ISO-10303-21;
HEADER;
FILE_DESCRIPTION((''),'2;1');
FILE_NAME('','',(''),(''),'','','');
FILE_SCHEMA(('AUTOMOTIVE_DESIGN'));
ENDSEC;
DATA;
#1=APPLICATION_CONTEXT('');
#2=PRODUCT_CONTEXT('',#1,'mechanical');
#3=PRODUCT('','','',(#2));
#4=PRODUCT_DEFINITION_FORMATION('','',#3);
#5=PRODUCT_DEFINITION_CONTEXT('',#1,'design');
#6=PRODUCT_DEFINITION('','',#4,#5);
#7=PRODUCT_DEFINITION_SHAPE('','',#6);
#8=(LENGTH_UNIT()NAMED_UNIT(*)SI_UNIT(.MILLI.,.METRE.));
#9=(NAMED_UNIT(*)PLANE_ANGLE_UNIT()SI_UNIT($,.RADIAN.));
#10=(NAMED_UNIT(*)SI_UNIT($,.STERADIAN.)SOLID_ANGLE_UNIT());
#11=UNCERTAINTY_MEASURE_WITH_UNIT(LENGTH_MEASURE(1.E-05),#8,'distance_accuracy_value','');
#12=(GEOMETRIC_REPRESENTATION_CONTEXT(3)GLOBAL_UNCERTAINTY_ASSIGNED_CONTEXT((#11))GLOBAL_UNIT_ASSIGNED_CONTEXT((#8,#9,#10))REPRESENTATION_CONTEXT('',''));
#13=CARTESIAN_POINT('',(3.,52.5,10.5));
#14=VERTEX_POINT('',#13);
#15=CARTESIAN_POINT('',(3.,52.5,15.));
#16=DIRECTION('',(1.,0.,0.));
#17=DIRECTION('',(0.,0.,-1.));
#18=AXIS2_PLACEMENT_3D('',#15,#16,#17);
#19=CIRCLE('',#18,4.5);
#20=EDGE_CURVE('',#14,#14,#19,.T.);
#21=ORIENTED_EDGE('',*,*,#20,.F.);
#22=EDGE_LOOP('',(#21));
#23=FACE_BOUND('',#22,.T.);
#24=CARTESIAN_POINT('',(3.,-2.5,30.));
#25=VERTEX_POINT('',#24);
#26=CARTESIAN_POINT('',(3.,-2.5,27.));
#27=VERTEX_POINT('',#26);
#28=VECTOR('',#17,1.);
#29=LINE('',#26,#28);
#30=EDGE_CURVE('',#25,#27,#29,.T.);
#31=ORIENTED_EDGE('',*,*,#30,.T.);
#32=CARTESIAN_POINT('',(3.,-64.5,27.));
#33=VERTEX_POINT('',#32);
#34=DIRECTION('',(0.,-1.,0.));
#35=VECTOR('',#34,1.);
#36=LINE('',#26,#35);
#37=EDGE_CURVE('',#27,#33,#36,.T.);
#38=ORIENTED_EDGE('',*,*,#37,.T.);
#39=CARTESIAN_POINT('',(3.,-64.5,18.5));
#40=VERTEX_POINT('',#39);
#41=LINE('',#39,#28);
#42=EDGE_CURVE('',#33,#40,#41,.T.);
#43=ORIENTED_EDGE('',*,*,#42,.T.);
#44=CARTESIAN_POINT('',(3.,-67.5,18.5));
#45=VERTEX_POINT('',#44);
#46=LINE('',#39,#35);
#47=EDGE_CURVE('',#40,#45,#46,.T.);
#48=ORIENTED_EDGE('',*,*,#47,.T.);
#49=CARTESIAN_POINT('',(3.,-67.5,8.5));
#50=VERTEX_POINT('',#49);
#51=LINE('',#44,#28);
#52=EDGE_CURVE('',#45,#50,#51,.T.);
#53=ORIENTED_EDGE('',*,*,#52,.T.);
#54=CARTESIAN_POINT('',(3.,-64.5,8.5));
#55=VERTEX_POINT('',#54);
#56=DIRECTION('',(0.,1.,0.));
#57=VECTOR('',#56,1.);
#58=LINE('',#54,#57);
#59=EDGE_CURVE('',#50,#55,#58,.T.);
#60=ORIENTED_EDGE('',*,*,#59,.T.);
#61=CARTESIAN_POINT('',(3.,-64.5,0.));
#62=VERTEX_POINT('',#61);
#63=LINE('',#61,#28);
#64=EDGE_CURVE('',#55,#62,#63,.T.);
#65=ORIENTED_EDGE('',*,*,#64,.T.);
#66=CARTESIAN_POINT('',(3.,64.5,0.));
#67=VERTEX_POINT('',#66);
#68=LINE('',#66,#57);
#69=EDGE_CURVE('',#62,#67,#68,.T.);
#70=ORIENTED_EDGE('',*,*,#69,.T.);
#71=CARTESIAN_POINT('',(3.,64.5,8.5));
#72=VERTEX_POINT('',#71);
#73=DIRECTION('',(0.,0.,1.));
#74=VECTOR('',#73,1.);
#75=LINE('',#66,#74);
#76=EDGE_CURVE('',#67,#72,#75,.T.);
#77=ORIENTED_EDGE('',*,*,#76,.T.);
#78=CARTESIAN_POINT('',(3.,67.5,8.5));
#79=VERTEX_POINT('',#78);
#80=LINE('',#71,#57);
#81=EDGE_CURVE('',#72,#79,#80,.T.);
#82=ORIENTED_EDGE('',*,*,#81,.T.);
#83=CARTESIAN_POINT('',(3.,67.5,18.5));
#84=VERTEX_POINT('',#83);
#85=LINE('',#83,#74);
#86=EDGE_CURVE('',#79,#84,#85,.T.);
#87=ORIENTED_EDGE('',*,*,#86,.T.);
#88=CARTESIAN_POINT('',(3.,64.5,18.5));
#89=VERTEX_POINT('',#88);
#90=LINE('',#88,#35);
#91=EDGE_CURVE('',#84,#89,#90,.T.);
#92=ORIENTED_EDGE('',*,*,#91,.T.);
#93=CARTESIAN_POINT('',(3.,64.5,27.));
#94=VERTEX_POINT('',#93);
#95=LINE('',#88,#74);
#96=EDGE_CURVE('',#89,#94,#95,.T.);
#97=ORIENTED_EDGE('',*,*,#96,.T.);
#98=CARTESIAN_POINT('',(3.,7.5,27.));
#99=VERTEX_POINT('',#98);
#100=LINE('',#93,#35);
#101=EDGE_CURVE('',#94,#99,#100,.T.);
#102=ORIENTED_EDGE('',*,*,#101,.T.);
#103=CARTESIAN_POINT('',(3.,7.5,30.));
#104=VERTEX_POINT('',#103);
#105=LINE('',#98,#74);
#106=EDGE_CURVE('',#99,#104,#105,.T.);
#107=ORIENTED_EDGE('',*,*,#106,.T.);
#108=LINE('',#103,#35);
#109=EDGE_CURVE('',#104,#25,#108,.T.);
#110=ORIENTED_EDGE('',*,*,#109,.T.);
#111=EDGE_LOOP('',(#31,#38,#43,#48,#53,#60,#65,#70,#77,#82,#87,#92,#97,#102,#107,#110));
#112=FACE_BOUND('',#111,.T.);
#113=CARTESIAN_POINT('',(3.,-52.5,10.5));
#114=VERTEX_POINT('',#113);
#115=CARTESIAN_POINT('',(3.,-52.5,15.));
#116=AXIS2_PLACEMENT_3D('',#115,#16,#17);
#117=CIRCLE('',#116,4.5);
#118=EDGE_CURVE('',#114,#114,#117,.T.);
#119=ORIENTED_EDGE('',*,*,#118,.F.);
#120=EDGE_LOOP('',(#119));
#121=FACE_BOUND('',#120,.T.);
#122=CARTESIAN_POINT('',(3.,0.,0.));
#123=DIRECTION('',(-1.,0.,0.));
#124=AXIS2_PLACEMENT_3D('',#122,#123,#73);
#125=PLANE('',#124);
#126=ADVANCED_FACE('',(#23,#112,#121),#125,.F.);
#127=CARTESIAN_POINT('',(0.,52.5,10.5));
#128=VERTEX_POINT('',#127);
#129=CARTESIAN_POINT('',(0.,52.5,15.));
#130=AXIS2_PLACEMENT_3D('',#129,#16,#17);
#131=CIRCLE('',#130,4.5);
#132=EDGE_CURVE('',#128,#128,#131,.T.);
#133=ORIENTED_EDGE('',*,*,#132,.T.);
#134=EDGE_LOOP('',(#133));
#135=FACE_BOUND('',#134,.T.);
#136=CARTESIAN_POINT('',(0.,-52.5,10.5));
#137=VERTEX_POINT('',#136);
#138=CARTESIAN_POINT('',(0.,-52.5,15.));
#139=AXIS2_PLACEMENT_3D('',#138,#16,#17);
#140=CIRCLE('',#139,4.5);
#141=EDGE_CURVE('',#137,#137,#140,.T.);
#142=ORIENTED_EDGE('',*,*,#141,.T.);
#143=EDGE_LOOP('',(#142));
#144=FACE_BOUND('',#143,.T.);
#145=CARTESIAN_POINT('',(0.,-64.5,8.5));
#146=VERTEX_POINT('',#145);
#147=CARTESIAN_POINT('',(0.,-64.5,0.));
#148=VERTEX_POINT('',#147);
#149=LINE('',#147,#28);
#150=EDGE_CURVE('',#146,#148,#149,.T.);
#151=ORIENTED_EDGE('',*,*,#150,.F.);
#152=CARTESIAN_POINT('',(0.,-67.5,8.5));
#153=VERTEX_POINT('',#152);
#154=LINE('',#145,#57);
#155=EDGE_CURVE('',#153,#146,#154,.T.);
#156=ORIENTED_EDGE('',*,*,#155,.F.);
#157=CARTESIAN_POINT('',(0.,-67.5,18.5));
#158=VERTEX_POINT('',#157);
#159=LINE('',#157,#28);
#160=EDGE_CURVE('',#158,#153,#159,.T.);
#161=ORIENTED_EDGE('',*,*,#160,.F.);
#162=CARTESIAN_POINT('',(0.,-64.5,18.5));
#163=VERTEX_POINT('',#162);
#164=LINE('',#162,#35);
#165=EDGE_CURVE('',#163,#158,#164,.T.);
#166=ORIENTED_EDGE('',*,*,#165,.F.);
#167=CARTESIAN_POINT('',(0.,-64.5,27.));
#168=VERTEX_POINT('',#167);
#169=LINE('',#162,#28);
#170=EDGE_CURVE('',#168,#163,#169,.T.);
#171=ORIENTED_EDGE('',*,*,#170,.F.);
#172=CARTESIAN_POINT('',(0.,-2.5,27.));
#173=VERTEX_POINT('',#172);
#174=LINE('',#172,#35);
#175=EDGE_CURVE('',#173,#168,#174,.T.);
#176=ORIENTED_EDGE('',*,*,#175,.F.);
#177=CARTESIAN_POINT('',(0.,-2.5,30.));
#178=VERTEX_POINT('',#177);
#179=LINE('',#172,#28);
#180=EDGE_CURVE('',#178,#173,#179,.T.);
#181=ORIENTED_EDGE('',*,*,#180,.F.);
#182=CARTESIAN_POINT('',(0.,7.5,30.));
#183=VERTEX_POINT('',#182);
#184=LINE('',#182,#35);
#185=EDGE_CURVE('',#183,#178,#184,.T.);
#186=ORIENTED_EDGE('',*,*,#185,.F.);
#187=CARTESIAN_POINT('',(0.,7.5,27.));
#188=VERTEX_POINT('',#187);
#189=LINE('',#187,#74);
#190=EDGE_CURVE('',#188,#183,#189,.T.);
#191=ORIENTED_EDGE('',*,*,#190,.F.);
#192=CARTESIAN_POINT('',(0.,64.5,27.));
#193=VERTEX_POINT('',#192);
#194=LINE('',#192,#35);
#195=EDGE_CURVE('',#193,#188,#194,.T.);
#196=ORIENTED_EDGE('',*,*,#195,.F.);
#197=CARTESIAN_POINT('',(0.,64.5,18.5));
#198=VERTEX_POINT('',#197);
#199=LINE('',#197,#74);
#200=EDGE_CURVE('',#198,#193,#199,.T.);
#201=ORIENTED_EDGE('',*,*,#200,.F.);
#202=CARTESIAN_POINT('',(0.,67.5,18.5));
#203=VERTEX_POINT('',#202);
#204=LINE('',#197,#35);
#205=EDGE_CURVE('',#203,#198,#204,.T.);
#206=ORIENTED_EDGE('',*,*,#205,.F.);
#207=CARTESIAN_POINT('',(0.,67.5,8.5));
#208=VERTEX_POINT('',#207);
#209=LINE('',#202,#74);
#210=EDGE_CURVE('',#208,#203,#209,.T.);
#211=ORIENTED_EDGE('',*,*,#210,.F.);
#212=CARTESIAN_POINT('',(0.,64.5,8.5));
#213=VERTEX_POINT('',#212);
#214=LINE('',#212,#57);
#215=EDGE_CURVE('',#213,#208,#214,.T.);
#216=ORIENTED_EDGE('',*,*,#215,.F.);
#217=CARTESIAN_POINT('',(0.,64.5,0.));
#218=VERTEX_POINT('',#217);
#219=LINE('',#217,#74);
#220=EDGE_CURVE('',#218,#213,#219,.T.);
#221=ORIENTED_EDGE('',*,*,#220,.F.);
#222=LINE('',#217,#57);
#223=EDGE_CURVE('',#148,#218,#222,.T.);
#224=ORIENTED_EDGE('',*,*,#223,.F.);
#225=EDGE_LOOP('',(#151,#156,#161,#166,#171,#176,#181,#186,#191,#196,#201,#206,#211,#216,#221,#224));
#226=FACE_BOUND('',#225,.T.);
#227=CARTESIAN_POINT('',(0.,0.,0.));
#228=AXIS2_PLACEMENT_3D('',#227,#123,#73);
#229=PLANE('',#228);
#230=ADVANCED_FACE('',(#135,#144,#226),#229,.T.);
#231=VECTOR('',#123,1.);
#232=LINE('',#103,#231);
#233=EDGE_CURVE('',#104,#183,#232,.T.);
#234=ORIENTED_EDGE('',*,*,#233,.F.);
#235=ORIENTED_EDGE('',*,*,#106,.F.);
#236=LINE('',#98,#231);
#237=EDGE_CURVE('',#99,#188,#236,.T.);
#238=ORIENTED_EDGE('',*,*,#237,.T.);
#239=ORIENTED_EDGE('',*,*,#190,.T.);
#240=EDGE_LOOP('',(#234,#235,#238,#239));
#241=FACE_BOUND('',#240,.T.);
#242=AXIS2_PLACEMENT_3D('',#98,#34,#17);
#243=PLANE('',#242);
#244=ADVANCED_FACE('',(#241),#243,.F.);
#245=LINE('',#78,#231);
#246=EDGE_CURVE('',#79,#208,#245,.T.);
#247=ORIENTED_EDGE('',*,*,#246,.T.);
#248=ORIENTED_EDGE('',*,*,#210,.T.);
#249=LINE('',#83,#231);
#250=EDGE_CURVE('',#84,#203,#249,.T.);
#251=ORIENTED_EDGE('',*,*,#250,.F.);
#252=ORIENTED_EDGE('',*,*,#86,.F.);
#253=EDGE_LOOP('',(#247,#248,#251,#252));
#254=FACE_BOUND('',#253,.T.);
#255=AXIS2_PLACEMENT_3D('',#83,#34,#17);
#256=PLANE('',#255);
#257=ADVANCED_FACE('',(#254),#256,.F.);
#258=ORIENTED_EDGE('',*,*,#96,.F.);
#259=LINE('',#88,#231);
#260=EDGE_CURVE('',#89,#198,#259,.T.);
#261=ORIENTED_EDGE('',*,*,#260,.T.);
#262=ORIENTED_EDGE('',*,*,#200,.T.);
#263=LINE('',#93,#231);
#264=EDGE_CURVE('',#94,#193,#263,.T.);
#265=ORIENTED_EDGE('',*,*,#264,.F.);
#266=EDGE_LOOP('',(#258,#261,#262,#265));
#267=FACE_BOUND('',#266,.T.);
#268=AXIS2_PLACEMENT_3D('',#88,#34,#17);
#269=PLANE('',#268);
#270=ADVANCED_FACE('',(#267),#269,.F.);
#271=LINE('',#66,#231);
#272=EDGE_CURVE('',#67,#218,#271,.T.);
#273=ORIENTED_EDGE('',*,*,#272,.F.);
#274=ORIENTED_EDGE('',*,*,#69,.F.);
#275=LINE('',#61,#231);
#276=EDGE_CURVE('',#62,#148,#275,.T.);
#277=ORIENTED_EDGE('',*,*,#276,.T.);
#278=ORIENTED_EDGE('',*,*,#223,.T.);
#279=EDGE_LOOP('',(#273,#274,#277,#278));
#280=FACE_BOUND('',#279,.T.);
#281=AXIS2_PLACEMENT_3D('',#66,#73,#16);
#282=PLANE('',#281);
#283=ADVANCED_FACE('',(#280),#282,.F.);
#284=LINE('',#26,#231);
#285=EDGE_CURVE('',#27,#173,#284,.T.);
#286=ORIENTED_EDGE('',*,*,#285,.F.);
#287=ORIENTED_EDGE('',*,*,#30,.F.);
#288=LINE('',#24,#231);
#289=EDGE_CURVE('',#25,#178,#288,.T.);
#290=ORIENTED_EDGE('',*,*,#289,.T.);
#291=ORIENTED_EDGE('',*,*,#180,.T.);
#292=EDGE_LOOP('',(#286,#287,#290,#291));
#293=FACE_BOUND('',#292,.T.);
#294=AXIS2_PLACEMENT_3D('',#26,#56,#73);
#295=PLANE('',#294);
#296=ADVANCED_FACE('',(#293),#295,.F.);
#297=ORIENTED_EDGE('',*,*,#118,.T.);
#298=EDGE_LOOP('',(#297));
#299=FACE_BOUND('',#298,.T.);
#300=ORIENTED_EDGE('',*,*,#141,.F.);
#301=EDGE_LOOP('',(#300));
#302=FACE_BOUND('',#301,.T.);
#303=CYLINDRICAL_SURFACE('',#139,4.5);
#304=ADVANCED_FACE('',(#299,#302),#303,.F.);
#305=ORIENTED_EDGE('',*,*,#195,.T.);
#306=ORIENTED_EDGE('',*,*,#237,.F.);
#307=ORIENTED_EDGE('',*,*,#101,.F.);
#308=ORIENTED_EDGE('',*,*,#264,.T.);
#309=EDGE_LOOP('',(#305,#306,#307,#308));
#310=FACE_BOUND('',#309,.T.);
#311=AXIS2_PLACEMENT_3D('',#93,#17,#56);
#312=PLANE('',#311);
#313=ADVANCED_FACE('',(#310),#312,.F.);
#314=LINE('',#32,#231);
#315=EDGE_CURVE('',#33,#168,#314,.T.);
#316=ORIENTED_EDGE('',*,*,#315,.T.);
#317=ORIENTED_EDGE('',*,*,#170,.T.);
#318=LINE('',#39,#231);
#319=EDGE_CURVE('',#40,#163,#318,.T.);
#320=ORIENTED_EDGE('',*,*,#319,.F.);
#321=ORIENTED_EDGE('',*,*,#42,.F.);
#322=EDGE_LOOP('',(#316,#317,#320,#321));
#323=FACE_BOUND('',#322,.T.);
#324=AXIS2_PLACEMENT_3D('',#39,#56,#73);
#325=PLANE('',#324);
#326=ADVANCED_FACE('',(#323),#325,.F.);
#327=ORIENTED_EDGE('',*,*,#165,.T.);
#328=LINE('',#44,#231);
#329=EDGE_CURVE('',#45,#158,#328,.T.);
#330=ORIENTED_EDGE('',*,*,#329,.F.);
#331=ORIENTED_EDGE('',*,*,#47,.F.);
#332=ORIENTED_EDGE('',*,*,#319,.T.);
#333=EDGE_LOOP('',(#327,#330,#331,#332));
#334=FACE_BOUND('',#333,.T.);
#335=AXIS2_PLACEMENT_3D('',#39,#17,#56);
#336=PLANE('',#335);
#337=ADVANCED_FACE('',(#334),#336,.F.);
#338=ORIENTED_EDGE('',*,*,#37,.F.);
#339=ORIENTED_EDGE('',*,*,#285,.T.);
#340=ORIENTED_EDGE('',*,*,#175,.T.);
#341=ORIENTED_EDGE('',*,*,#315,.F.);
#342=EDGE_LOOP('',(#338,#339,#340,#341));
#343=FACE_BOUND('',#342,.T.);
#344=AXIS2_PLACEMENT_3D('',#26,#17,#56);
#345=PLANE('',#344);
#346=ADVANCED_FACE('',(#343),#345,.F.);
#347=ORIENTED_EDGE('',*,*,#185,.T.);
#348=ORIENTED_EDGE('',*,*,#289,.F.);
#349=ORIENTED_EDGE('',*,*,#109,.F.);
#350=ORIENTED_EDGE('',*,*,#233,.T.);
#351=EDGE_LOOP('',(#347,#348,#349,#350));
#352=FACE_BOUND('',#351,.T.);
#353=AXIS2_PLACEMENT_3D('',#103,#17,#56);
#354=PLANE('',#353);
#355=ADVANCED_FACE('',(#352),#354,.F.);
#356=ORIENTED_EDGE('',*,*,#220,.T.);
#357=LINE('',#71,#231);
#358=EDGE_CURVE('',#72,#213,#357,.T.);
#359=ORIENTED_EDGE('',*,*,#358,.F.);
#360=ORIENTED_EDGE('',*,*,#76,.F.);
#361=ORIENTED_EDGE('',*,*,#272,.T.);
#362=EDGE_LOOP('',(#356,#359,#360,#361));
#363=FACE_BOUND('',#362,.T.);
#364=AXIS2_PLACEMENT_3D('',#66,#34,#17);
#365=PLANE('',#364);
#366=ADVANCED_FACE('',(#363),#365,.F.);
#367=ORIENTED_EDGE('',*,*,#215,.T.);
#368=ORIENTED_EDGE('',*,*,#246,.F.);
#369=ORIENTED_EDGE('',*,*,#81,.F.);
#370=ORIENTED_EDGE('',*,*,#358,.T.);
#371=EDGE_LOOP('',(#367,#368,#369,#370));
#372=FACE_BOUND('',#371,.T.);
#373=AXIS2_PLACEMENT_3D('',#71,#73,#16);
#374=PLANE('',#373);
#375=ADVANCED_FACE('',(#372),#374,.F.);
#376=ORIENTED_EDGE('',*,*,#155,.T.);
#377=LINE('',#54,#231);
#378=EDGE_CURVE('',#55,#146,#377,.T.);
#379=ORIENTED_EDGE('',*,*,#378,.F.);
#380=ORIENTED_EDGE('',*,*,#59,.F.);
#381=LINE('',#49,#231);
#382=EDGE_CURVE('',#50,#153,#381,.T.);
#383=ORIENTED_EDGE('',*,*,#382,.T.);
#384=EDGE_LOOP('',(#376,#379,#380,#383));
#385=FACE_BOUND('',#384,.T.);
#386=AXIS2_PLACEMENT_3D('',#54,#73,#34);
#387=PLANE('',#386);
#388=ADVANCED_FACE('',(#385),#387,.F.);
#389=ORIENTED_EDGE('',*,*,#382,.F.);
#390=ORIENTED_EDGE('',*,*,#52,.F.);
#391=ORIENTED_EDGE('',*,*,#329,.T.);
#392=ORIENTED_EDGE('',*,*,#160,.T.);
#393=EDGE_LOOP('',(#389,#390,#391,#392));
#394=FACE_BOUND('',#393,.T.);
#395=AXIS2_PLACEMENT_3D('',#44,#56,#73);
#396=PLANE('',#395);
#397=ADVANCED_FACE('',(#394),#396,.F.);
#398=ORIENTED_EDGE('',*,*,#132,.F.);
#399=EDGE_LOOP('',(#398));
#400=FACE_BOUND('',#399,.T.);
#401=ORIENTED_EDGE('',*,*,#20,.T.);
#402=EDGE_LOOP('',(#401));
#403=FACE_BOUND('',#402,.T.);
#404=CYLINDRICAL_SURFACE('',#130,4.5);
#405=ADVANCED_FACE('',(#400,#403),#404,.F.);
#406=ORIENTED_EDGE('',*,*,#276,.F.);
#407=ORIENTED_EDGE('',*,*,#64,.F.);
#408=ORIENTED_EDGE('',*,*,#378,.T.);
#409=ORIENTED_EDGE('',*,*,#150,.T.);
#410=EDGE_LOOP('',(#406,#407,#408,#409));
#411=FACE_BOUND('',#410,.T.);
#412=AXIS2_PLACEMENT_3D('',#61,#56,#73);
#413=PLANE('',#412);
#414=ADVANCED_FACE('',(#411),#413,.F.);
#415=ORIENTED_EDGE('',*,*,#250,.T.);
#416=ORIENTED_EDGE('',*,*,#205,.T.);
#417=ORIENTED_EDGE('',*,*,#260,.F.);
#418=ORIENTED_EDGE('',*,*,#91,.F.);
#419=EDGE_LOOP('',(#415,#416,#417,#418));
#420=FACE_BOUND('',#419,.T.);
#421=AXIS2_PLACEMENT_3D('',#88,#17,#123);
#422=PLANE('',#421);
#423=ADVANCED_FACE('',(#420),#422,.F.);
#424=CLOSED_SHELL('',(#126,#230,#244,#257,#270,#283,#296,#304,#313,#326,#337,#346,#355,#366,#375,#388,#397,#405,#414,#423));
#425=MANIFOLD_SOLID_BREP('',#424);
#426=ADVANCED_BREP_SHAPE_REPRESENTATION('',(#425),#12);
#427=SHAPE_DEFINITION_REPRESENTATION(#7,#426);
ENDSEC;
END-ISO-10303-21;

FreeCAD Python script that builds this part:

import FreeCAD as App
import Part
import Sketcher
from FreeCAD import Vector
Q = App.Units.Quantity

doc = App.newDocument("Part")
body = doc.addObject("PartDesign::Body", "Body")

# Sketch on YZ plane
sketch1 = doc.addObject("Sketcher::SketchObject", "Sketch")
body.addObject(sketch1)
sketch1.AttachmentSupport = (doc.YZ_Plane, [""])
sketch1.MapMode = "FlatFace"
sketch1.addGeometry([
    Part.LineSegment(Vector(64.5, 0, 0), Vector(64.5, 8.5, 0)),  # 0
    Part.LineSegment(Vector(64.5, 8.5, 0), Vector(67.5, 8.5, 0)),  # 1
    Part.LineSegment(Vector(67.5, 8.5, 0), Vector(67.5, 18.5, 0)),  # 2
    Part.LineSegment(Vector(67.5, 18.5, 0), Vector(64.5, 18.5, 0)),  # 3
    Part.LineSegment(Vector(64.5, 18.5, 0), Vector(64.5, 27, 0)),  # 4
    Part.LineSegment(Vector(64.5, 27, 0), Vector(7.5, 27, 0)),  # 5
    Part.LineSegment(Vector(7.5, 27, 0), Vector(7.5, 30, 0)),  # 6
    Part.LineSegment(Vector(7.5, 30, 0), Vector(-2.5, 30, 0)),  # 7
    Part.LineSegment(Vector(-2.5, 30, 0), Vector(-2.5, 27, 0)),  # 8
    Part.LineSegment(Vector(-2.5, 27, 0), Vector(-64.5, 27, 0)),  # 9
    Part.LineSegment(Vector(-64.5, 27, 0), Vector(-64.5, 18.5, 0)),  # 10
    Part.LineSegment(Vector(-64.5, 18.5, 0), Vector(-67.5, 18.5, 0)),  # 11
    Part.LineSegment(Vector(-67.5, 18.5, 0), Vector(-67.5, 8.5, 0)),  # 12
    Part.LineSegment(Vector(-67.5, 8.5, 0), Vector(-64.5, 8.5, 0)),  # 13
    Part.LineSegment(Vector(-64.5, 8.5, 0), Vector(-64.5, 0, 0)),  # 14
    Part.LineSegment(Vector(-64.5, 0, 0), Vector(64.5, 0, 0)),  # 15
], False)
sketch1.addConstraint([
    Sketcher.Constraint("Coincident", 0, 2, 1, 1),
    Sketcher.Constraint("Coincident", 1, 2, 2, 1),
    Sketcher.Constraint("Coincident", 2, 2, 3, 1),
    Sketcher.Constraint("Coincident", 3, 2, 4, 1),
    Sketcher.Constraint("Coincident", 4, 2, 5, 1),
    Sketcher.Constraint("Coincident", 5, 2, 6, 1),
    Sketcher.Constraint("Coincident", 6, 2, 7, 1),
    Sketcher.Constraint("Coincident", 7, 2, 8, 1),
    Sketcher.Constraint("Coincident", 8, 2, 9, 1),
    Sketcher.Constraint("Coincident", 9, 2, 10, 1),
    Sketcher.Constraint("Coincident", 10, 2, 11, 1),
    Sketcher.Constraint("Coincident", 11, 2, 12, 1),
    Sketcher.Constraint("Coincident", 12, 2, 13, 1),
    Sketcher.Constraint("Coincident", 13, 2, 14, 1),
    Sketcher.Constraint("Coincident", 14, 2, 15, 1),
    Sketcher.Constraint("Coincident", 15, 2, 0, 1),
    Sketcher.Constraint("Vertical", 0),
    Sketcher.Constraint("Horizontal", 1),
    Sketcher.Constraint("Vertical", 2),
    Sketcher.Constraint("Horizontal", 3),
    Sketcher.Constraint("Vertical", 4),
    Sketcher.Constraint("Horizontal", 5),
    Sketcher.Constraint("Vertical", 6),
    Sketcher.Constraint("Horizontal", 7),
    Sketcher.Constraint("Vertical", 8),
    Sketcher.Constraint("Horizontal", 9),
    Sketcher.Constraint("Vertical", 10),
    Sketcher.Constraint("Horizontal", 11),
    Sketcher.Constraint("Vertical", 12),
    Sketcher.Constraint("Horizontal", 13),
    Sketcher.Constraint("Vertical", 14),
    Sketcher.Constraint("Horizontal", 15),
    Sketcher.Constraint("Symmetric", 14, 2, 15, 2, -1, 1),
    Sketcher.Constraint("Symmetric", 4, 2, 9, 2, -2),
    Sketcher.Constraint("Symmetric", 2, 2, 11, 2, -2),
    Sketcher.Constraint("Horizontal", 1, 2, 12, 2),
    Sketcher.Constraint("Vertical", 0, 2, 3, 2),
    Sketcher.Constraint("Equal", 7, 2),
    Sketcher.Constraint("Equal", 0, 4),
    Sketcher.Constraint("Equal", 13, 6),
    Sketcher.Constraint("DistanceX", 1, 1, 1, 2, Q("3 mm")),
    Sketcher.Constraint("DistanceX", 5, 2, 5, 1, Q("57 mm")),
    Sketcher.Constraint("DistanceX", 7, 2, 7, 1, Q("10 mm")),
    Sketcher.Constraint("DistanceX", 9, 2, 9, 1, Q("62 mm")),
    Sketcher.Constraint("DistanceY", 0, 1, 0, 2, Q("8.5 mm")),
])
pad1 = doc.addObject("PartDesign::Pad", "Pad")
body.addObject(pad1)
pad1.Profile = sketch1
pad1.Length = 3

# Sketch on YZ plane
sketch2 = doc.addObject("Sketcher::SketchObject", "Sketch001")
body.addObject(sketch2)
sketch2.AttachmentSupport = (doc.YZ_Plane, [""])
sketch2.MapMode = "FlatFace"
sketch2.AttachmentOffset = App.Placement(Vector(0, 0, 3), App.Rotation())
sketch2.addGeometry([
    Part.Circle(Vector(52.5, 15, 0), Vector(0, 0, 1), 4.5),
    Part.Circle(Vector(-52.5, 15, 0), Vector(0, 0, 1), 4.5),
], False)
sketch2.addConstraint([
    Sketcher.Constraint("Equal", 0, 1),
    Sketcher.Constraint("Symmetric", 0, 3, 1, 3, -2),
    Sketcher.Constraint("Diameter", 0, Q("9 mm")),
    Sketcher.Constraint("DistanceY", -1, 1, 0, 3, Q("15 mm")),
    Sketcher.Constraint("DistanceX", 1, 3, 0, 3, Q("105 mm")),
])
pocket1 = doc.addObject("PartDesign::Pocket", "Pocket")
body.addObject(pocket1)
pocket1.Profile = sketch2
pocket1.Type = "ThroughAll"

doc.recompute()
